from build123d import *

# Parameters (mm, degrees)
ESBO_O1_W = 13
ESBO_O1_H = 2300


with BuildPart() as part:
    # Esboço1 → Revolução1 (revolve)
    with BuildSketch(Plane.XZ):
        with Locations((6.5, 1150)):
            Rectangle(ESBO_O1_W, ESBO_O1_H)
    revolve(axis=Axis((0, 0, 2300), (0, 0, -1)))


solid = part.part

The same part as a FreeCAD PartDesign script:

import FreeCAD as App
import Part
import Sketcher
from FreeCAD import Vector
Q = App.Units.Quantity

doc = App.newDocument("Part")
params = doc.addObject("Spreadsheet::Sheet", "Params")
for row, (alias, value) in enumerate([
    ("sketch1_width", "13 mm"),
    ("sketch1_height", "2300 mm"),
    ("revolution_angle", "360 deg"),
], start=1):
    params.set(f"A{row}", alias)
    params.set(f"B{row}", "=" + value)
    params.setAlias(f"B{row}", alias)

body = doc.addObject("PartDesign::Body", "Body")

# Sketch on XZ plane
sketch1 = body.newObject("Sketcher::SketchObject", "Sketch")
sketch1.AttachmentSupport = (doc.getObject("XZ_Plane"), [""])
sketch1.MapMode = "FlatFace"
sketch1.addGeometry(Part.LineSegment(Vector(0, 2300, 0), Vector(0, 0, 0)), False)
sketch1.addGeometry(Part.LineSegment(Vector(0, 0, 0), Vector(13, 0, 0)), False)
sketch1.addGeometry(Part.LineSegment(Vector(13, 0, 0), Vector(13, 2300, 0)), False)
sketch1.addGeometry(Part.LineSegment(Vector(13, 2300, 0), Vector(0, 2300, 0)), False)
sketch1.addConstraint(Sketcher.Constraint("Coincident", 0, 2, 1, 1))
sketch1.addConstraint(Sketcher.Constraint("Coincident", 1, 2, 2, 1))
sketch1.addConstraint(Sketcher.Constraint("Coincident", 2, 2, 3, 1))
sketch1.addConstraint(Sketcher.Constraint("Coincident", 3, 2, 0, 1))
sketch1.addConstraint(Sketcher.Constraint("Vertical", 0))
sketch1.addConstraint(Sketcher.Constraint("Horizontal", 1))
sketch1.addConstraint(Sketcher.Constraint("Vertical", 2))
sketch1.addConstraint(Sketcher.Constraint("Horizontal", 3))
sketch1.addConstraint(Sketcher.Constraint("Coincident", 0, 2, -1, 1))
sketch1.addConstraint(Sketcher.Constraint("DistanceX", 1, 1, 1, 2, Q("13 mm")))
sketch1.addConstraint(Sketcher.Constraint("DistanceY", 0, 2, 0, 1, Q("2300 mm")))
sketch1.setExpression("Constraints[9]", "Params.sketch1_width")
sketch1.setExpression("Constraints[10]", "Params.sketch1_height")
revolution = body.newObject("PartDesign::Revolution", "Revolution")
revolution.Profile = sketch1
revolution.ReferenceAxis = (sketch1, ["V_Axis"])
revolution.setExpression("Angle", "Params.revolution_angle")

doc.recompute()
